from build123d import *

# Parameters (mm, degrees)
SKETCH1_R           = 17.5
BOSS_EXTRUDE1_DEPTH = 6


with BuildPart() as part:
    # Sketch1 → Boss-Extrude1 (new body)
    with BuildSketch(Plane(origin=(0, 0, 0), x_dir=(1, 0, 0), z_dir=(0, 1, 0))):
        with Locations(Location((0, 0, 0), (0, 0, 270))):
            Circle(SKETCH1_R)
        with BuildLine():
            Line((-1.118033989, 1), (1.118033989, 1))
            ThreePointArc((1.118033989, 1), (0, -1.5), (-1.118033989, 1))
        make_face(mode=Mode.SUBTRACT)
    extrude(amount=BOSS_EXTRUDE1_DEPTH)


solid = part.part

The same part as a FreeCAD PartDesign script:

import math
import FreeCAD as App
import Part
import Sketcher
Q = App.Units.Quantity

doc = App.newDocument("Part")
params = doc.addObject("Spreadsheet::Sheet", "Params")
for row, (alias, value) in enumerate([
    ("sketch1_diameter", "35 mm"),
    ("sketch1_radius", "1.5 mm"),
    ("pad1_length", "6 mm"),
], start=1):
    params.set(f"A{row}", alias)
    params.set(f"B{row}", "=" + value)
    params.setAlias(f"B{row}", alias)

body = doc.addObject("PartDesign::Body", "Body")

sketch1 = body.newObject("Sketcher::SketchObject", "Sketch")
sketch1.AttachmentSupport = (doc.getObject("XZ_Plane"), [""])
sketch1.MapMode = "FlatFace"
sketch1.addGeometry([
    Part.Circle(App.Vector(0, 0, 0), App.Vector(0, 0, 1), 17.5),
    Part.ArcOfCircle(Part.Circle(App.Vector(0, 0, 0), App.Vector(0, 0, 1), 1.5), math.radians(-42), math.radians(222)),
    Part.LineSegment(App.Vector(-1.1, -1, 0), App.Vector(1.1, -1, 0)),
], False)
sketch1.addConstraint([
    Sketcher.Constraint("Coincident", 1, 1, 2, 2),
    Sketcher.Constraint("Coincident", 2, 1, 1, 2),
    Sketcher.Constraint("Horizontal", 2),
    Sketcher.Constraint("Coincident", 0, 3, -1, 1),
    Sketcher.Constraint("Coincident", 1, 3, -1, 1),
    Sketcher.Constraint("Diameter", 0, Q("35 mm")),
    Sketcher.Constraint("Radius", 1, Q("1.5 mm")),
    Sketcher.Constraint("DistanceY", 1, 1, -1, 1, Q("1 mm")),
])
sketch1.setExpression("Constraints[5]", "Params.sketch1_diameter")
sketch1.setExpression("Constraints[6]", "Params.sketch1_radius")
pad1 = body.newObject("PartDesign::Pad", "Pad")
pad1.Profile = sketch1
pad1.setExpression("Length", "Params.pad1_length")
pad1.Reversed = True

doc.recompute()
